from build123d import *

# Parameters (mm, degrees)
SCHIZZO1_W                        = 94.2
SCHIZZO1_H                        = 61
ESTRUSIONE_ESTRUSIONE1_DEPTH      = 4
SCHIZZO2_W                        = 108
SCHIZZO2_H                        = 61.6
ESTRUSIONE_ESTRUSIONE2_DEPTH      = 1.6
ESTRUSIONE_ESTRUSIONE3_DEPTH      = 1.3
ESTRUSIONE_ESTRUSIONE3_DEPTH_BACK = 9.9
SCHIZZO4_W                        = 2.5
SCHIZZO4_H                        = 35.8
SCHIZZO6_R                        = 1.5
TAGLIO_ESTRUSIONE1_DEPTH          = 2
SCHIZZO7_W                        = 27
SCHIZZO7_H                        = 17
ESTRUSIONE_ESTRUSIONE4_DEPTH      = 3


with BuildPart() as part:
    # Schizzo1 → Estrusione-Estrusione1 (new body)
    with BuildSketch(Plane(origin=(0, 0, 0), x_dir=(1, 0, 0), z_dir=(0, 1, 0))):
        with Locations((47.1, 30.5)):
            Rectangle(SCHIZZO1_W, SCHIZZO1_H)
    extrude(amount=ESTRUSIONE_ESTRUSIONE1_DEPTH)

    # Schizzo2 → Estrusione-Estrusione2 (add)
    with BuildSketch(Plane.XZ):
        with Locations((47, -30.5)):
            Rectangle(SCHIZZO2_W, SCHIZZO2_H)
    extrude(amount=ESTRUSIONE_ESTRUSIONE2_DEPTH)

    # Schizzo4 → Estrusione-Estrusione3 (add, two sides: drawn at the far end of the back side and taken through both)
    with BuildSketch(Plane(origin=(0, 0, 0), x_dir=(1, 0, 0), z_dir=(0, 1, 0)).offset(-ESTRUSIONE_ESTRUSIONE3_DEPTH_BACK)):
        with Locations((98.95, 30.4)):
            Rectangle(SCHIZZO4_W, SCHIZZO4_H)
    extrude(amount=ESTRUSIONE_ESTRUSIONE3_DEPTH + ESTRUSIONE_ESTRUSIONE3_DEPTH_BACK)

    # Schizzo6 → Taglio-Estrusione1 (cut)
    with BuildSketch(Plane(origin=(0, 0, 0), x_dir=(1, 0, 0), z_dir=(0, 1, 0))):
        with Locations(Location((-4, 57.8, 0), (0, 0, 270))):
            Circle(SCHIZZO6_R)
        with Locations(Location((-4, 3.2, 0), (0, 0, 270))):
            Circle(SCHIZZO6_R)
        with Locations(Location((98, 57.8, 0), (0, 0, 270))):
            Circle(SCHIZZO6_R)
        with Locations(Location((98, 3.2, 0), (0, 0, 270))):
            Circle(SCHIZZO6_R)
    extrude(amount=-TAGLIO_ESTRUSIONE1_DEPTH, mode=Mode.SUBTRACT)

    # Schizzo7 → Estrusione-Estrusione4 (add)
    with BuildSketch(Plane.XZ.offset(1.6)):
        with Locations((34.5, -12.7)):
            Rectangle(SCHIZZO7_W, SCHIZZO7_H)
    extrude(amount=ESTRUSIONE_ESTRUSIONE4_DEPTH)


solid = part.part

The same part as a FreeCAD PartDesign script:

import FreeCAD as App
import Part
import Sketcher

V = App.Vector
Q = App.Units.Quantity


def add_polygon(sketch, points):
    """Adds a closed chain of lines whose ends are joined by coincident constraints."""
    first, n = sketch.GeometryCount, len(points)
    for a, b in zip(points, points[1:] + points[:1]):
        sketch.addGeometry(Part.LineSegment(App.Vector(*a, 0), App.Vector(*b, 0)), False)
    for i in range(n):
        sketch.addConstraint(Sketcher.Constraint("Coincident", first + i, 2, first + (i + 1) % n, 1))

doc = App.newDocument("Part")
body = doc.addObject("PartDesign::Body", "Body")

sketch1 = doc.addObject("Sketcher::SketchObject", "Sketch")
body.addObject(sketch1)
sketch1.AttachmentSupport = (doc.XZ_Plane, [""])
sketch1.MapMode = "FlatFace"
add_polygon(sketch1, [(0, -61), (0, 0), (94.2, 0), (94.2, -61)])
sketch1.addConstraint([
    Sketcher.Constraint("Vertical", 0),
    Sketcher.Constraint("Horizontal", 1),
    Sketcher.Constraint("Vertical", 2),
    Sketcher.Constraint("Horizontal", 3),
    Sketcher.Constraint("Coincident", 0, 2, -1, 1),
    Sketcher.Constraint("DistanceY", 0, 1, 0, 2, Q("61 mm")),
    Sketcher.Constraint("DistanceX", 1, 1, 1, 2, Q("94.2 mm")),
])
pad1 = doc.addObject("PartDesign::Pad", "Pad")
body.addObject(pad1)
pad1.Profile = sketch1
pad1.Length = 4
pad1.Reversed = True

sketch2 = doc.addObject("Sketcher::SketchObject", "Sketch001")
body.addObject(sketch2)
sketch2.AttachmentSupport = (doc.XZ_Plane, [""])
sketch2.MapMode = "FlatFace"
add_polygon(sketch2, [(-7, 0.3), (-7, -61.3), (101, -61.3), (101, 0.3)])
sketch2.addConstraint([
    Sketcher.Constraint("Vertical", 0),
    Sketcher.Constraint("Horizontal", 1),
    Sketcher.Constraint("Vertical", 2),
    Sketcher.Constraint("Horizontal", 3),
    Sketcher.Constraint("DistanceX", 1, 1, 1, 2, Q("108 mm")),
    Sketcher.Constraint("DistanceY", 0, 2, 0, 1, Q("61.6 mm")),
    Sketcher.Constraint("DistanceX", 0, 2, -1, 1, Q("7 mm")),
    Sketcher.Constraint("DistanceY", 0, 2, -1, 1, Q("61.3 mm")),
])
pad2 = doc.addObject("PartDesign::Pad", "Pad001")
body.addObject(pad2)
pad2.Profile = sketch2
pad2.Length = 1.6

sketch3 = doc.addObject("Sketcher::SketchObject", "Sketch002")
body.addObject(sketch3)
sketch3.AttachmentSupport = (doc.XZ_Plane, [""])
sketch3.MapMode = "FlatFace"
add_polygon(sketch3, [(97.7, -48.3), (97.7, -12.5), (100.2, -12.5), (100.2, -48.3)])
sketch3.addConstraint([
    Sketcher.Constraint("Vertical", 0),
    Sketcher.Constraint("Horizontal", 1),
    Sketcher.Constraint("Vertical", 2),
    Sketcher.Constraint("Horizontal", 3),
    Sketcher.Constraint("DistanceX", 1, 1, 1, 2, Q("2.5 mm")),
    Sketcher.Constraint("DistanceY", 0, 1, 0, 2, Q("35.8 mm")),
    Sketcher.Constraint("DistanceX", -1, 1, 0, 2, Q("97.7 mm")),
    Sketcher.Constraint("DistanceY", 0, 2, -1, 1, Q("12.5 mm")),
])
pad3 = doc.addObject("PartDesign::Pad", "Pad002")
body.addObject(pad3)
pad3.Profile = sketch3
pad3.Type = "TwoLengths"
pad3.Length = 1.3
pad3.Length2 = 9.9
pad3.Reversed = True

sketch4 = doc.addObject("Sketcher::SketchObject", "Sketch003")
body.addObject(sketch4)
sketch4.AttachmentSupport = (doc.XZ_Plane, [""])
sketch4.MapMode = "FlatFace"
sketch4.addGeometry([
    Part.Circle(V(-4, -57.8, 0), V(0, 0, 1), 1.5),
    Part.Circle(V(-4, -3.2, 0), V(0, 0, 1), 1.5),
    Part.Circle(V(98, -57.8, 0), V(0, 0, 1), 1.5),
    Part.Circle(V(98, -3.2, 0), V(0, 0, 1), 1.5),
], False)
sketch4.addConstraint([
    Sketcher.Constraint("Equal", 0, 1),
    Sketcher.Constraint("Equal", 1, 2),
    Sketcher.Constraint("Equal", 2, 3),
    Sketcher.Constraint("Horizontal", 0, 3, 2, 3),
    Sketcher.Constraint("Horizontal", 1, 3, 3, 3),
    Sketcher.Constraint("Vertical", 0, 3, 1, 3),
    Sketcher.Constraint("Vertical", 2, 3, 3, 3),
    Sketcher.Constraint("Diameter", 0, Q("3 mm")),
    Sketcher.Constraint("DistanceX", 0, 3, -1, 1, Q("4 mm")),
    Sketcher.Constraint("DistanceX", -1, 1, 2, 3, Q("98 mm")),
    Sketcher.Constraint("DistanceY", 0, 3, -1, 1, Q("57.8 mm")),
    Sketcher.Constraint("DistanceY", 1, 3, -1, 1, Q("3.2 mm")),
])
pocket1 = doc.addObject("PartDesign::Pocket", "Pocket")
body.addObject(pocket1)
pocket1.Profile = sketch4
pocket1.Length = 2
pocket1.Reversed = True

sketch5 = doc.addObject("Sketcher::SketchObject", "Sketch004")
body.addObject(sketch5)
sketch5.AttachmentSupport = (doc.XZ_Plane, [""])
sketch5.MapMode = "FlatFace"
sketch5.AttachmentOffset = App.Placement(V(0, 0, 1.6), App.Rotation())
add_polygon(sketch5, [(21, -4.2), (21, -21.2), (48, -21.2), (48, -4.2)])
sketch5.addConstraint([
    Sketcher.Constraint("Vertical", 0),
    Sketcher.Constraint("Horizontal", 1),
    Sketcher.Constraint("Vertical", 2),
    Sketcher.Constraint("Horizontal", 3),
    Sketcher.Constraint("DistanceX", 1, 1, 1, 2, Q("27 mm")),
    Sketcher.Constraint("DistanceY", 0, 2, 0, 1, Q("17 mm")),
    Sketcher.Constraint("DistanceX", -1, 1, 0, 2, Q("21 mm")),
    Sketcher.Constraint("DistanceY", 0, 2, -1, 1, Q("21.2 mm")),
])
pad4 = doc.addObject("PartDesign::Pad", "Pad003")
body.addObject(pad4)
pad4.Profile = sketch5
pad4.Length = 3

doc.recompute()
